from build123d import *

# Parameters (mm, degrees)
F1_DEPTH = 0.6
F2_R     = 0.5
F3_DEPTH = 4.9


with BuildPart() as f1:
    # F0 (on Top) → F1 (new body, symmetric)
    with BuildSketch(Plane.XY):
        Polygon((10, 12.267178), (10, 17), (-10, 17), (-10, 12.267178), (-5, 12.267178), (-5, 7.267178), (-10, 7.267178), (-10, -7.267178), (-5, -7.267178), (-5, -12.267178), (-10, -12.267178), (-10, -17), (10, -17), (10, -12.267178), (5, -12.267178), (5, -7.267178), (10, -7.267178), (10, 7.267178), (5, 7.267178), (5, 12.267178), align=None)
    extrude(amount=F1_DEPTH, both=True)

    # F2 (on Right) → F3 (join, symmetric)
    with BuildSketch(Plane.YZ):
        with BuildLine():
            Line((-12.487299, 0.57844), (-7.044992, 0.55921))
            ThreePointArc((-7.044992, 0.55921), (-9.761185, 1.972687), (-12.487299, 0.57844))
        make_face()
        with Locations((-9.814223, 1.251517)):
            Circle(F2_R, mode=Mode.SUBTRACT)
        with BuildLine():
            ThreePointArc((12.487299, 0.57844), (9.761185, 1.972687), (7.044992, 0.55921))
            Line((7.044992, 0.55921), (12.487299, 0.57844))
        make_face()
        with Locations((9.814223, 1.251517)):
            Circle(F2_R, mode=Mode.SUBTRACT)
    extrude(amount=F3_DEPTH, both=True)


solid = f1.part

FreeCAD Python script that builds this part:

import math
import FreeCAD as App
import Part
import Sketcher
Q = App.Units.Quantity

doc = App.newDocument("Part")
body = doc.addObject("PartDesign::Body", "Body")

# Sketch on XY plane
sketch1 = doc.addObject("Sketcher::SketchObject", "Sketch")
body.addObject(sketch1)
sketch1.AttachmentSupport = (doc.XY_Plane, [""])
sketch1.MapMode = "FlatFace"
sketch1.addGeometry([
    Part.LineSegment(App.Vector(10, 12.267178, 0), App.Vector(10, 17, 0)),  # 0
    Part.LineSegment(App.Vector(10, 17, 0), App.Vector(-10, 17, 0)),  # 1
    Part.LineSegment(App.Vector(-10, 17, 0), App.Vector(-10, 12.267178, 0)),  # 2
    Part.LineSegment(App.Vector(-10, 12.267178, 0), App.Vector(-5, 12.267178, 0)),  # 3
    Part.LineSegment(App.Vector(-5, 12.267178, 0), App.Vector(-5, 7.267178, 0)),  # 4
    Part.LineSegment(App.Vector(-5, 7.267178, 0), App.Vector(-10, 7.267178, 0)),  # 5
    Part.LineSegment(App.Vector(-10, 7.267178, 0), App.Vector(-10, -7.267178, 0)),  # 6
    Part.LineSegment(App.Vector(-10, -7.267178, 0), App.Vector(-5, -7.267178, 0)),  # 7
    Part.LineSegment(App.Vector(-5, -7.267178, 0), App.Vector(-5, -12.267178, 0)),  # 8
    Part.LineSegment(App.Vector(-5, -12.267178, 0), App.Vector(-10, -12.267178, 0)),  # 9
    Part.LineSegment(App.Vector(-10, -12.267178, 0), App.Vector(-10, -17, 0)),  # 10
    Part.LineSegment(App.Vector(-10, -17, 0), App.Vector(10, -17, 0)),  # 11
    Part.LineSegment(App.Vector(10, -17, 0), App.Vector(10, -12.267178, 0)),  # 12
    Part.LineSegment(App.Vector(10, -12.267178, 0), App.Vector(5, -12.267178, 0)),  # 13
    Part.LineSegment(App.Vector(5, -12.267178, 0), App.Vector(5, -7.267178, 0)),  # 14
    Part.LineSegment(App.Vector(5, -7.267178, 0), App.Vector(10, -7.267178, 0)),  # 15
    Part.LineSegment(App.Vector(10, -7.267178, 0), App.Vector(10, 7.267178, 0)),  # 16
    Part.LineSegment(App.Vector(10, 7.267178, 0), App.Vector(5, 7.267178, 0)),  # 17
    Part.LineSegment(App.Vector(5, 7.267178, 0), App.Vector(5, 12.267178, 0)),  # 18
    Part.LineSegment(App.Vector(5, 12.267178, 0), App.Vector(10, 12.267178, 0)),  # 19
], False)
sketch1.addConstraint([
    Sketcher.Constraint("Coincident", 0, 2, 1, 1),
    Sketcher.Constraint("Coincident", 1, 2, 2, 1),
    Sketcher.Constraint("Coincident", 2, 2, 3, 1),
    Sketcher.Constraint("Coincident", 3, 2, 4, 1),
    Sketcher.Constraint("Coincident", 4, 2, 5, 1),
    Sketcher.Constraint("Coincident", 5, 2, 6, 1),
    Sketcher.Constraint("Coincident", 6, 2, 7, 1),
    Sketcher.Constraint("Coincident", 7, 2, 8, 1),
    Sketcher.Constraint("Coincident", 8, 2, 9, 1),
    Sketcher.Constraint("Coincident", 9, 2, 10, 1),
    Sketcher.Constraint("Coincident", 10, 2, 11, 1),
    Sketcher.Constraint("Coincident", 11, 2, 12, 1),
    Sketcher.Constraint("Coincident", 12, 2, 13, 1),
    Sketcher.Constraint("Coincident", 13, 2, 14, 1),
    Sketcher.Constraint("Coincident", 14, 2, 15, 1),
    Sketcher.Constraint("Coincident", 15, 2, 16, 1),
    Sketcher.Constraint("Coincident", 16, 2, 17, 1),
    Sketcher.Constraint("Coincident", 17, 2, 18, 1),
    Sketcher.Constraint("Coincident", 18, 2, 19, 1),
    Sketcher.Constraint("Coincident", 19, 2, 0, 1),
    Sketcher.Constraint("Vertical", 0),
    Sketcher.Constraint("Horizontal", 1),
    Sketcher.Constraint("Vertical", 2),
    Sketcher.Constraint("Horizontal", 3),
    Sketcher.Constraint("Vertical", 4),
    Sketcher.Constraint("Horizontal", 5),
    Sketcher.Constraint("Vertical", 6),
    Sketcher.Constraint("Horizontal", 7),
    Sketcher.Constraint("Vertical", 8),
    Sketcher.Constraint("Horizontal", 9),
    Sketcher.Constraint("Vertical", 10),
    Sketcher.Constraint("Horizontal", 11),
    Sketcher.Constraint("Vertical", 12),
    Sketcher.Constraint("Horizontal", 13),
    Sketcher.Constraint("Vertical", 14),
    Sketcher.Constraint("Horizontal", 15),
    Sketcher.Constraint("Vertical", 16),
    Sketcher.Constraint("Horizontal", 17),
    Sketcher.Constraint("Vertical", 18),
    Sketcher.Constraint("Horizontal", 19),
    Sketcher.Constraint("Symmetric", 0, 2, 10, 2, -1, 1),
    Sketcher.Constraint("Symmetric", 2, 2, 12, 2, -1, 1),
    Sketcher.Constraint("Symmetric", 4, 2, 14, 2, -1, 1),
    Sketcher.Constraint("Symmetric", 6, 2, 16, 2, -1, 1),
    Sketcher.Constraint("Symmetric", 8, 2, 18, 2, -1, 1),
    Sketcher.Constraint("Symmetric", 9, 2, 12, 2, -2),
    Sketcher.Constraint("Symmetric", 7, 2, 14, 2, -2),
    Sketcher.Constraint("Vertical", 2, 2, 5, 2),
    Sketcher.Constraint("Equal", 19, 4),
    Sketcher.Constraint("DistanceX", 1, 2, 1, 1, Q("20 mm")),
    Sketcher.Constraint("DistanceX", 3, 1, 3, 2, Q("5 mm")),
    Sketcher.Constraint("DistanceY", -1, 1, 0, 2, Q("17 mm")),
    Sketcher.Constraint("DistanceY", 0, 1, 0, 2, Q("4.732822 mm")),
])
pad1 = doc.addObject("PartDesign::Pad", "Pad")
body.addObject(pad1)
pad1.Profile = sketch1
pad1.Length = 1.2
pad1.Midplane = True

# Sketch on YZ plane
sketch2 = doc.addObject("Sketcher::SketchObject", "Sketch001")
body.addObject(sketch2)
sketch2.AttachmentSupport = (doc.YZ_Plane, [""])
sketch2.MapMode = "FlatFace"
sketch2.addGeometry([
    Part.LineSegment(App.Vector(-12.487299, 0.57844, 0), App.Vector(-7.044992, 0.55921, 0)),  # 0
    Part.ArcOfCircle(Part.Circle(App.Vector(-9.772984, -1.366496, 0), App.Vector(0, 0, 1), 3.339204), math.radians(35.218503), math.radians(144.376597)),  # 1
    Part.Circle(App.Vector(-9.814223, 1.251517, 0), App.Vector(0, 0, 1), 0.5),  # 2
    Part.ArcOfCircle(Part.Circle(App.Vector(9.772984, -1.366496, 0), App.Vector(0, 0, 1), 3.339204), math.radians(35.623403), math.radians(144.781497)),  # 3
    Part.LineSegment(App.Vector(7.044992, 0.55921, 0), App.Vector(12.487299, 0.57844, 0)),  # 4
    Part.Circle(App.Vector(9.814223, 1.251517, 0), App.Vector(0, 0, 1), 0.5),  # 5
], False)
sketch2.addConstraint([
    Sketcher.Constraint("Coincident", 0, 1, 1, 2),
    Sketcher.Constraint("Coincident", 1, 1, 0, 2),
    Sketcher.Constraint("Coincident", 3, 1, 4, 2),
    Sketcher.Constraint("Coincident", 4, 1, 3, 2),
    Sketcher.Constraint("Equal", 1, 3),
    Sketcher.Constraint("Equal", 2, 5),
    Sketcher.Constraint("Symmetric", 1, 3, 3, 3, -2),
    Sketcher.Constraint("Symmetric", 2, 3, 5, 3, -2),
    Sketcher.Constraint("Horizontal", 0, 1, 3, 1),
    Sketcher.Constraint("Horizontal", 1, 1, 4, 1),
    Sketcher.Constraint("Diameter", 2, Q("1 mm")),
    Sketcher.Constraint("Radius", 1, Q("3.339204 mm")),
    Sketcher.Constraint("DistanceX", 0, 1, -1, 1, Q("12.487299 mm")),
    Sketcher.Constraint("Distance", 0, Q("5.442341 mm")),
    Sketcher.Constraint("DistanceY", -1, 1, 0, 1, Q("0.57844 mm")),
    Sketcher.Constraint("DistanceY", -1, 1, 1, 1, Q("0.55921 mm")),
    Sketcher.Constraint("DistanceX", 2, 3, 1, 3, Q("0.041239 mm")),
    Sketcher.Constraint("DistanceY", -1, 1, 2, 3, Q("1.251517 mm")),
])
pad2 = doc.addObject("PartDesign::Pad", "Pad001")
body.addObject(pad2)
pad2.Profile = sketch2
pad2.Length = 9.8
pad2.Midplane = True

doc.recompute()
